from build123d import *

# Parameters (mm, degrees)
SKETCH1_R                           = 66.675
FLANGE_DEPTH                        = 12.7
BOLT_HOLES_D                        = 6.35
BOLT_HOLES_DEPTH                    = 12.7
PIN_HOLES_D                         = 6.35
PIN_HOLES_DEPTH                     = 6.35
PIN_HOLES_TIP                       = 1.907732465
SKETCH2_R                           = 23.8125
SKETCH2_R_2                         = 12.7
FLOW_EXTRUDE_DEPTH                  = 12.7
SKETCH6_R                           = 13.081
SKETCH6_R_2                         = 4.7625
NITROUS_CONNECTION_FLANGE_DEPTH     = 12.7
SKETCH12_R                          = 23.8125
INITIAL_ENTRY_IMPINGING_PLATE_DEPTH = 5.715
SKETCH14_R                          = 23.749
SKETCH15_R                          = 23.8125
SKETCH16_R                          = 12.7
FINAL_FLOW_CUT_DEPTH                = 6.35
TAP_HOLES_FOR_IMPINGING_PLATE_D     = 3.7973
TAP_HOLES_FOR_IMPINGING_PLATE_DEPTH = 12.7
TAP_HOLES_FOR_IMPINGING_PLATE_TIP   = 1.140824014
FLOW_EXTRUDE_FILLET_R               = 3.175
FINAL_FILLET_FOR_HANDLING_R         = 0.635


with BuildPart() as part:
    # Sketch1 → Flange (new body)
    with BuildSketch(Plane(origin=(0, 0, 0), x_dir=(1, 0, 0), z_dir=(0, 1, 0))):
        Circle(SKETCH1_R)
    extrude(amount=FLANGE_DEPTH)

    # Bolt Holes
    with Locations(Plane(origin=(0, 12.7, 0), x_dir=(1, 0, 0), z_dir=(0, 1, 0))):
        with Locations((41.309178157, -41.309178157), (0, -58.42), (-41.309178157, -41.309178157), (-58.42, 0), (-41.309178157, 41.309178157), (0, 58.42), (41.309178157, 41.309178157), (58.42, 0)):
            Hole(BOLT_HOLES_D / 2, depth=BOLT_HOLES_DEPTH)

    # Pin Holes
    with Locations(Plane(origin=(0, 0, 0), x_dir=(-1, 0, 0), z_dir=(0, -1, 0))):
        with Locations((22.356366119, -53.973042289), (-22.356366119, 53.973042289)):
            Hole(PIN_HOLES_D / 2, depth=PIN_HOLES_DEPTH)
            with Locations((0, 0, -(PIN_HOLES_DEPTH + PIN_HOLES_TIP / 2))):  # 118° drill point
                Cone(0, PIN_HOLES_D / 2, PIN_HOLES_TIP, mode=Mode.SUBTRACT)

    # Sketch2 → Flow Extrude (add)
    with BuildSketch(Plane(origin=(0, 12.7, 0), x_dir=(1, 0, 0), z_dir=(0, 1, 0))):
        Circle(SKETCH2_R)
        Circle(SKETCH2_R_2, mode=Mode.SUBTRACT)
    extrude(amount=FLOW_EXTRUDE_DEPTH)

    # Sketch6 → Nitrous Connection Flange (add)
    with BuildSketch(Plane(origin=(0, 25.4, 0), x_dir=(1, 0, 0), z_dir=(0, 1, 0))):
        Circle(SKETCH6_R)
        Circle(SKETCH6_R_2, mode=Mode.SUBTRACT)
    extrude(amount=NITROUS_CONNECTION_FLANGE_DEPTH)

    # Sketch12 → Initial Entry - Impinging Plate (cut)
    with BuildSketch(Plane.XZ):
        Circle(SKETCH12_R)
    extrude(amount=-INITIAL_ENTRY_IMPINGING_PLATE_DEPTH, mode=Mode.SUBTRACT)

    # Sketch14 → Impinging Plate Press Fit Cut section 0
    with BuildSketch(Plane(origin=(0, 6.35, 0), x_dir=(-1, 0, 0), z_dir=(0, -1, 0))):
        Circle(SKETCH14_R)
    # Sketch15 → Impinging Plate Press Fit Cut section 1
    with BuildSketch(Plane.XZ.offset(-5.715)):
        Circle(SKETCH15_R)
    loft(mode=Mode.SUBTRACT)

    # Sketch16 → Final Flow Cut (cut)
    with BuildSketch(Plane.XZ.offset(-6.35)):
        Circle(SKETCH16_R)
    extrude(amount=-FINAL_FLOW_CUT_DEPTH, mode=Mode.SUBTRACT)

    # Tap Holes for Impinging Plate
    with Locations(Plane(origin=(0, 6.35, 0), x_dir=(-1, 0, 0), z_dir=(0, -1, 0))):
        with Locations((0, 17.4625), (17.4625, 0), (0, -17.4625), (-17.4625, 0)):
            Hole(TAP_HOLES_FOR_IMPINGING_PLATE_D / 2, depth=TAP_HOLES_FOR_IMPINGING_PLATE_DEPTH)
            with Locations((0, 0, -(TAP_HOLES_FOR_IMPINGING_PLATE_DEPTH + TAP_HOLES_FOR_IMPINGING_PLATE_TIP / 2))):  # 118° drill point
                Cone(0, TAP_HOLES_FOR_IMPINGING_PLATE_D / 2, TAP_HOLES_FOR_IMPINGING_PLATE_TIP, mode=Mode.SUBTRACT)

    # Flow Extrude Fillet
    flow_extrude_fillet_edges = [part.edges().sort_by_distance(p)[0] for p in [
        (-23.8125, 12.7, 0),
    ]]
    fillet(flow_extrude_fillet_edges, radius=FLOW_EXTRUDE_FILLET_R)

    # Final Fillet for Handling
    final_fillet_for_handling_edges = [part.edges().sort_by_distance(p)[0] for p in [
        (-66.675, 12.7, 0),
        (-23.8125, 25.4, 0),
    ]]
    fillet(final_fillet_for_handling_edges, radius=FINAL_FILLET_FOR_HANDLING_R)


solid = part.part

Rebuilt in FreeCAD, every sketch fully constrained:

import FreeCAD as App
import Part
import Sketcher
from FreeCAD import Vector
Q = App.Units.Quantity


def edges_at(feature, points):
    """Names of the edges that pass closest to the given points."""
    edges = feature.Shape.Edges
    near = lambda p: min(range(len(edges)), key=lambda i: edges[i].distToShape(Part.Vertex(*p))[0])
    return sorted({f"Edge{near(p) + 1}" for p in points})

doc = App.newDocument("Part")
body = doc.addObject("PartDesign::Body", "Body")

sketch1 = body.newObject("Sketcher::SketchObject", "Sketch")
sketch1.AttachmentSupport = (doc.getObject("XZ_Plane"), [""])
sketch1.MapMode = "FlatFace"
sketch1.addGeometry(Part.Circle(Vector(0, 0, 0), Vector(0, 0, 1), 67), False)
sketch1.addConstraint([
    Sketcher.Constraint("Coincident", 0, 3, -1, 1),
    Sketcher.Constraint("Diameter", 0, Q("5.25 in")),
])
pad1 = body.newObject("PartDesign::Pad", "Pad")
pad1.Profile = sketch1
pad1.Length = Q("0.5 in")
pad1.Reversed = True

sketch2 = body.newObject("Sketcher::SketchObject", "Sketch001")
sketch2.AttachmentSupport = (doc.getObject("XZ_Plane"), [""])
sketch2.MapMode = "FlatFace"
sketch2.AttachmentOffset = App.Placement(Vector(0, 0, -0.5 * 25.4), App.Rotation())
sketch2.addGeometry([
    Part.Circle(Vector(41.3, 41.3, 0), Vector(0, 0, 1), 3.2),
    Part.Circle(Vector(0, 58.4, 0), Vector(0, 0, 1), 3.2),
    Part.Circle(Vector(-41.3, 41.3, 0), Vector(0, 0, 1), 3.2),
    Part.Circle(Vector(-58.4, 0, 0), Vector(0, 0, 1), 3.2),
    Part.Circle(Vector(-41.3, -41.3, 0), Vector(0, 0, 1), 3.2),
    Part.Circle(Vector(0, -58.4, 0), Vector(0, 0, 1), 3.2),
    Part.Circle(Vector(41.3, -41.3, 0), Vector(0, 0, 1), 3.2),
    Part.Circle(Vector(58.4, 0, 0), Vector(0, 0, 1), 3.2),
], False)
sketch2.addConstraint([
    Sketcher.Constraint("Equal", 0, 1),
    Sketcher.Constraint("Equal", 1, 2),
    Sketcher.Constraint("Equal", 2, 3),
    Sketcher.Constraint("Equal", 3, 4),
    Sketcher.Constraint("Equal", 4, 5),
    Sketcher.Constraint("Equal", 5, 6),
    Sketcher.Constraint("Equal", 6, 7),
    Sketcher.Constraint("Symmetric", 0, 3, 4, 3, -1, 1),
    Sketcher.Constraint("Symmetric", 1, 3, 5, 3, -1, 1),
    Sketcher.Constraint("Symmetric", 2, 3, 6, 3, -1, 1),
    Sketcher.Constraint("Symmetric", 3, 3, 7, 3, -1, 1),
    Sketcher.Constraint("Symmetric", 0, 3, 2, 3, -2),
    Sketcher.Constraint("PointOnObject", 1, 3, -2),
    Sketcher.Constraint("PointOnObject", 3, 3, -1),
    Sketcher.Constraint("Diameter", 0, Q("0.25 in")),
    Sketcher.Constraint("DistanceY", -1, 1, 1, 3, Q("2.3 in")),
    Sketcher.Constraint("DistanceX", 3, 3, -1, 1, Q("2.3 in")),
    Sketcher.Constraint("DistanceX", -1, 1, 0, 3, 41.309178),
    Sketcher.Constraint("DistanceY", -1, 1, 0, 3, 41.309178),
])
doc.recompute()
hole = body.newObject("PartDesign::Hole", "Hole")
hole.Profile = sketch2
hole.ThreadType = "None"
hole.Diameter = Q("0.25 in")
hole.DepthType = "Dimension"
hole.Depth = Q("0.5 in")
hole.DrillPoint = "Flat"
hole.Reversed = True

sketch3 = body.newObject("Sketcher::SketchObject", "Sketch002")
sketch3.AttachmentSupport = (doc.getObject("XZ_Plane"), [""])
sketch3.MapMode = "FlatFace"
sketch3.addGeometry([
    Part.Circle(Vector(-22.4, 54, 0), Vector(0, 0, 1), 3.2),
    Part.Circle(Vector(22.4, -54, 0), Vector(0, 0, 1), 3.2),
], False)
sketch3.addConstraint([
    Sketcher.Constraint("Equal", 0, 1),
    Sketcher.Constraint("Symmetric", 0, 3, 1, 3, -1, 1),
    Sketcher.Constraint("Diameter", 0, Q("0.25 in")),
    Sketcher.Constraint("DistanceX", 0, 3, -1, 1, 22.356366),
    Sketcher.Constraint("DistanceY", -1, 1, 0, 3, 53.973042),
])
doc.recompute()
hole2 = body.newObject("PartDesign::Hole", "Hole001")
hole2.Profile = sketch3
hole2.ThreadType = "None"
hole2.Diameter = Q("0.25 in")
hole2.DepthType = "Dimension"
hole2.Depth = Q("0.25 in")
hole2.DrillPoint = "Angled"
hole2.DrillPointAngle = 118

sketch4 = body.newObject("Sketcher::SketchObject", "Sketch003")
sketch4.AttachmentSupport = (doc.getObject("XZ_Plane"), [""])
sketch4.MapMode = "FlatFace"
sketch4.AttachmentOffset = App.Placement(Vector(0, 0, -0.5 * 25.4), App.Rotation())
sketch4.addGeometry([
    Part.Circle(Vector(0, 0, 0), Vector(0, 0, 1), 24),
    Part.Circle(Vector(0, 0, 0), Vector(0, 0, 1), 13),
], False)
sketch4.addConstraint([
    Sketcher.Constraint("Coincident", 0, 3, -1, 1),
    Sketcher.Constraint("Coincident", 1, 3, -1, 1),
    Sketcher.Constraint("Diameter", 1, Q("1 in")),
    Sketcher.Constraint("Diameter", 0, Q("1.875 in")),
])
pad2 = body.newObject("PartDesign::Pad", "Pad001")
pad2.Profile = sketch4
pad2.Length = Q("0.5 in")
pad2.Reversed = True

sketch5 = body.newObject("Sketcher::SketchObject", "Sketch004")
sketch5.AttachmentSupport = (doc.getObject("XZ_Plane"), [""])
sketch5.MapMode = "FlatFace"
sketch5.AttachmentOffset = App.Placement(Vector(0, 0, -1 * 25.4), App.Rotation())
sketch5.addGeometry([
    Part.Circle(Vector(0, 0, 0), Vector(0, 0, 1), 13.1),
    Part.Circle(Vector(0, 0, 0), Vector(0, 0, 1), 4.8),
], False)
sketch5.addConstraint([
    Sketcher.Constraint("Coincident", 0, 3, -1, 1),
    Sketcher.Constraint("Coincident", 1, 3, -1, 1),
    Sketcher.Constraint("Diameter", 0, Q("1.03 in")),
    Sketcher.Constraint("Diameter", 1, Q("0.375 in")),
])
pad3 = body.newObject("PartDesign::Pad", "Pad002")
pad3.Profile = sketch5
pad3.Length = Q("0.5 in")
pad3.Reversed = True

sketch6 = body.newObject("Sketcher::SketchObject", "Sketch005")
sketch6.AttachmentSupport = (doc.getObject("XZ_Plane"), [""])
sketch6.MapMode = "FlatFace"
sketch6.addGeometry(Part.Circle(Vector(0, 0, 0), Vector(0, 0, 1), 24), False)
sketch6.addConstraint([
    Sketcher.Constraint("Coincident", 0, 3, -1, 1),
    Sketcher.Constraint("Diameter", 0, Q("1.875 in")),
])
pocket1 = body.newObject("PartDesign::Pocket", "Pocket")
pocket1.Profile = sketch6
pocket1.Length = Q("0.225 in")

sketch7 = body.newObject("Sketcher::SketchObject", "Sketch006")
sketch7.AttachmentSupport = (doc.getObject("XZ_Plane"), [""])
sketch7.MapMode = "FlatFace"
sketch7.AttachmentOffset = App.Placement(Vector(0, 0, -0.25 * 25.4), App.Rotation())
sketch7.addGeometry(Part.Circle(Vector(0, 0, 0), Vector(0, 0, 1), 24), False)
sketch7.addConstraint([
    Sketcher.Constraint("Coincident", 0, 3, -1, 1),
    Sketcher.Constraint("Diameter", 0, Q("1.87 in")),
])

sketch8 = body.newObject("Sketcher::SketchObject", "Sketch007")
sketch8.AttachmentSupport = (doc.getObject("XZ_Plane"), [""])
sketch8.MapMode = "FlatFace"
sketch8.AttachmentOffset = App.Placement(Vector(0, 0, -0.225 * 25.4), App.Rotation())
sketch8.addGeometry(Part.Circle(Vector(0, 0, 0), Vector(0, 0, 1), 24), False)
sketch8.addConstraint([
    Sketcher.Constraint("Coincident", 0, 3, -1, 1),
    Sketcher.Constraint("Diameter", 0, Q("1.875 in")),
])

subtractiveloft = body.newObject("PartDesign::SubtractiveLoft", "SubtractiveLoft")
subtractiveloft.Profile = sketch7
subtractiveloft.Sections = [sketch8]

sketch9 = body.newObject("Sketcher::SketchObject", "Sketch008")
sketch9.AttachmentSupport = (doc.getObject("XZ_Plane"), [""])
sketch9.MapMode = "FlatFace"
sketch9.AttachmentOffset = App.Placement(Vector(0, 0, -0.25 * 25.4), App.Rotation())
sketch9.addGeometry(Part.Circle(Vector(0, 0, 0), Vector(0, 0, 1), 13), False)
sketch9.addConstraint([
    Sketcher.Constraint("Coincident", 0, 3, -1, 1),
    Sketcher.Constraint("Diameter", 0, Q("1 in")),
])
pocket2 = body.newObject("PartDesign::Pocket", "Pocket001")
pocket2.Profile = sketch9
pocket2.Length = Q("0.25 in")

sketch10 = body.newObject("Sketcher::SketchObject", "Sketch009")
sketch10.AttachmentSupport = (doc.getObject("XZ_Plane"), [""])
sketch10.MapMode = "FlatFace"
sketch10.AttachmentOffset = App.Placement(Vector(0, 0, -0.25 * 25.4), App.Rotation())
sketch10.addGeometry([
    Part.Circle(Vector(0, -17.5, 0), Vector(0, 0, 1), 1.9),
    Part.Circle(Vector(-17.5, 0, 0), Vector(0, 0, 1), 1.9),
    Part.Circle(Vector(0, 17.5, 0), Vector(0, 0, 1), 1.9),
    Part.Circle(Vector(17.5, 0, 0), Vector(0, 0, 1), 1.9),
], False)
sketch10.addConstraint([
    Sketcher.Constraint("Equal", 0, 1),
    Sketcher.Constraint("Equal", 1, 2),
    Sketcher.Constraint("Equal", 2, 3),
    Sketcher.Constraint("Symmetric", 0, 3, 2, 3, -1, 1),
    Sketcher.Constraint("Symmetric", 1, 3, 3, 3, -1, 1),
    Sketcher.Constraint("PointOnObject", 0, 3, -2),
    Sketcher.Constraint("PointOnObject", 1, 3, -1),
    Sketcher.Constraint("Diameter", 0, Q("0.1495 in")),
    Sketcher.Constraint("DistanceY", 0, 3, -1, 1, Q("0.6875 in")),
    Sketcher.Constraint("DistanceX", 1, 3, -1, 1, Q("0.6875 in")),
])
doc.recompute()
hole3 = body.newObject("PartDesign::Hole", "Hole002")
hole3.Profile = sketch10
hole3.ThreadType = "None"
hole3.Diameter = Q("0.1495 in")
hole3.DepthType = "Dimension"
hole3.Depth = Q("0.5 in")
hole3.DrillPoint = "Angled"
hole3.DrillPointAngle = 118
doc.recompute()

fillet = body.newObject("PartDesign::Fillet", "Fillet")
fillet.Base = (hole3, edges_at(hole3, [(-23.812, 12.7, 0)]))
fillet.Radius = Q("0.125 in")
doc.recompute()

fillet2 = body.newObject("PartDesign::Fillet", "Fillet001")
fillet2.Base = (fillet, edges_at(fillet, [(-66.675, 12.7, 0), (-23.812, 25.4, 0)]))
fillet2.Radius = Q("0.025 in")

doc.recompute()
